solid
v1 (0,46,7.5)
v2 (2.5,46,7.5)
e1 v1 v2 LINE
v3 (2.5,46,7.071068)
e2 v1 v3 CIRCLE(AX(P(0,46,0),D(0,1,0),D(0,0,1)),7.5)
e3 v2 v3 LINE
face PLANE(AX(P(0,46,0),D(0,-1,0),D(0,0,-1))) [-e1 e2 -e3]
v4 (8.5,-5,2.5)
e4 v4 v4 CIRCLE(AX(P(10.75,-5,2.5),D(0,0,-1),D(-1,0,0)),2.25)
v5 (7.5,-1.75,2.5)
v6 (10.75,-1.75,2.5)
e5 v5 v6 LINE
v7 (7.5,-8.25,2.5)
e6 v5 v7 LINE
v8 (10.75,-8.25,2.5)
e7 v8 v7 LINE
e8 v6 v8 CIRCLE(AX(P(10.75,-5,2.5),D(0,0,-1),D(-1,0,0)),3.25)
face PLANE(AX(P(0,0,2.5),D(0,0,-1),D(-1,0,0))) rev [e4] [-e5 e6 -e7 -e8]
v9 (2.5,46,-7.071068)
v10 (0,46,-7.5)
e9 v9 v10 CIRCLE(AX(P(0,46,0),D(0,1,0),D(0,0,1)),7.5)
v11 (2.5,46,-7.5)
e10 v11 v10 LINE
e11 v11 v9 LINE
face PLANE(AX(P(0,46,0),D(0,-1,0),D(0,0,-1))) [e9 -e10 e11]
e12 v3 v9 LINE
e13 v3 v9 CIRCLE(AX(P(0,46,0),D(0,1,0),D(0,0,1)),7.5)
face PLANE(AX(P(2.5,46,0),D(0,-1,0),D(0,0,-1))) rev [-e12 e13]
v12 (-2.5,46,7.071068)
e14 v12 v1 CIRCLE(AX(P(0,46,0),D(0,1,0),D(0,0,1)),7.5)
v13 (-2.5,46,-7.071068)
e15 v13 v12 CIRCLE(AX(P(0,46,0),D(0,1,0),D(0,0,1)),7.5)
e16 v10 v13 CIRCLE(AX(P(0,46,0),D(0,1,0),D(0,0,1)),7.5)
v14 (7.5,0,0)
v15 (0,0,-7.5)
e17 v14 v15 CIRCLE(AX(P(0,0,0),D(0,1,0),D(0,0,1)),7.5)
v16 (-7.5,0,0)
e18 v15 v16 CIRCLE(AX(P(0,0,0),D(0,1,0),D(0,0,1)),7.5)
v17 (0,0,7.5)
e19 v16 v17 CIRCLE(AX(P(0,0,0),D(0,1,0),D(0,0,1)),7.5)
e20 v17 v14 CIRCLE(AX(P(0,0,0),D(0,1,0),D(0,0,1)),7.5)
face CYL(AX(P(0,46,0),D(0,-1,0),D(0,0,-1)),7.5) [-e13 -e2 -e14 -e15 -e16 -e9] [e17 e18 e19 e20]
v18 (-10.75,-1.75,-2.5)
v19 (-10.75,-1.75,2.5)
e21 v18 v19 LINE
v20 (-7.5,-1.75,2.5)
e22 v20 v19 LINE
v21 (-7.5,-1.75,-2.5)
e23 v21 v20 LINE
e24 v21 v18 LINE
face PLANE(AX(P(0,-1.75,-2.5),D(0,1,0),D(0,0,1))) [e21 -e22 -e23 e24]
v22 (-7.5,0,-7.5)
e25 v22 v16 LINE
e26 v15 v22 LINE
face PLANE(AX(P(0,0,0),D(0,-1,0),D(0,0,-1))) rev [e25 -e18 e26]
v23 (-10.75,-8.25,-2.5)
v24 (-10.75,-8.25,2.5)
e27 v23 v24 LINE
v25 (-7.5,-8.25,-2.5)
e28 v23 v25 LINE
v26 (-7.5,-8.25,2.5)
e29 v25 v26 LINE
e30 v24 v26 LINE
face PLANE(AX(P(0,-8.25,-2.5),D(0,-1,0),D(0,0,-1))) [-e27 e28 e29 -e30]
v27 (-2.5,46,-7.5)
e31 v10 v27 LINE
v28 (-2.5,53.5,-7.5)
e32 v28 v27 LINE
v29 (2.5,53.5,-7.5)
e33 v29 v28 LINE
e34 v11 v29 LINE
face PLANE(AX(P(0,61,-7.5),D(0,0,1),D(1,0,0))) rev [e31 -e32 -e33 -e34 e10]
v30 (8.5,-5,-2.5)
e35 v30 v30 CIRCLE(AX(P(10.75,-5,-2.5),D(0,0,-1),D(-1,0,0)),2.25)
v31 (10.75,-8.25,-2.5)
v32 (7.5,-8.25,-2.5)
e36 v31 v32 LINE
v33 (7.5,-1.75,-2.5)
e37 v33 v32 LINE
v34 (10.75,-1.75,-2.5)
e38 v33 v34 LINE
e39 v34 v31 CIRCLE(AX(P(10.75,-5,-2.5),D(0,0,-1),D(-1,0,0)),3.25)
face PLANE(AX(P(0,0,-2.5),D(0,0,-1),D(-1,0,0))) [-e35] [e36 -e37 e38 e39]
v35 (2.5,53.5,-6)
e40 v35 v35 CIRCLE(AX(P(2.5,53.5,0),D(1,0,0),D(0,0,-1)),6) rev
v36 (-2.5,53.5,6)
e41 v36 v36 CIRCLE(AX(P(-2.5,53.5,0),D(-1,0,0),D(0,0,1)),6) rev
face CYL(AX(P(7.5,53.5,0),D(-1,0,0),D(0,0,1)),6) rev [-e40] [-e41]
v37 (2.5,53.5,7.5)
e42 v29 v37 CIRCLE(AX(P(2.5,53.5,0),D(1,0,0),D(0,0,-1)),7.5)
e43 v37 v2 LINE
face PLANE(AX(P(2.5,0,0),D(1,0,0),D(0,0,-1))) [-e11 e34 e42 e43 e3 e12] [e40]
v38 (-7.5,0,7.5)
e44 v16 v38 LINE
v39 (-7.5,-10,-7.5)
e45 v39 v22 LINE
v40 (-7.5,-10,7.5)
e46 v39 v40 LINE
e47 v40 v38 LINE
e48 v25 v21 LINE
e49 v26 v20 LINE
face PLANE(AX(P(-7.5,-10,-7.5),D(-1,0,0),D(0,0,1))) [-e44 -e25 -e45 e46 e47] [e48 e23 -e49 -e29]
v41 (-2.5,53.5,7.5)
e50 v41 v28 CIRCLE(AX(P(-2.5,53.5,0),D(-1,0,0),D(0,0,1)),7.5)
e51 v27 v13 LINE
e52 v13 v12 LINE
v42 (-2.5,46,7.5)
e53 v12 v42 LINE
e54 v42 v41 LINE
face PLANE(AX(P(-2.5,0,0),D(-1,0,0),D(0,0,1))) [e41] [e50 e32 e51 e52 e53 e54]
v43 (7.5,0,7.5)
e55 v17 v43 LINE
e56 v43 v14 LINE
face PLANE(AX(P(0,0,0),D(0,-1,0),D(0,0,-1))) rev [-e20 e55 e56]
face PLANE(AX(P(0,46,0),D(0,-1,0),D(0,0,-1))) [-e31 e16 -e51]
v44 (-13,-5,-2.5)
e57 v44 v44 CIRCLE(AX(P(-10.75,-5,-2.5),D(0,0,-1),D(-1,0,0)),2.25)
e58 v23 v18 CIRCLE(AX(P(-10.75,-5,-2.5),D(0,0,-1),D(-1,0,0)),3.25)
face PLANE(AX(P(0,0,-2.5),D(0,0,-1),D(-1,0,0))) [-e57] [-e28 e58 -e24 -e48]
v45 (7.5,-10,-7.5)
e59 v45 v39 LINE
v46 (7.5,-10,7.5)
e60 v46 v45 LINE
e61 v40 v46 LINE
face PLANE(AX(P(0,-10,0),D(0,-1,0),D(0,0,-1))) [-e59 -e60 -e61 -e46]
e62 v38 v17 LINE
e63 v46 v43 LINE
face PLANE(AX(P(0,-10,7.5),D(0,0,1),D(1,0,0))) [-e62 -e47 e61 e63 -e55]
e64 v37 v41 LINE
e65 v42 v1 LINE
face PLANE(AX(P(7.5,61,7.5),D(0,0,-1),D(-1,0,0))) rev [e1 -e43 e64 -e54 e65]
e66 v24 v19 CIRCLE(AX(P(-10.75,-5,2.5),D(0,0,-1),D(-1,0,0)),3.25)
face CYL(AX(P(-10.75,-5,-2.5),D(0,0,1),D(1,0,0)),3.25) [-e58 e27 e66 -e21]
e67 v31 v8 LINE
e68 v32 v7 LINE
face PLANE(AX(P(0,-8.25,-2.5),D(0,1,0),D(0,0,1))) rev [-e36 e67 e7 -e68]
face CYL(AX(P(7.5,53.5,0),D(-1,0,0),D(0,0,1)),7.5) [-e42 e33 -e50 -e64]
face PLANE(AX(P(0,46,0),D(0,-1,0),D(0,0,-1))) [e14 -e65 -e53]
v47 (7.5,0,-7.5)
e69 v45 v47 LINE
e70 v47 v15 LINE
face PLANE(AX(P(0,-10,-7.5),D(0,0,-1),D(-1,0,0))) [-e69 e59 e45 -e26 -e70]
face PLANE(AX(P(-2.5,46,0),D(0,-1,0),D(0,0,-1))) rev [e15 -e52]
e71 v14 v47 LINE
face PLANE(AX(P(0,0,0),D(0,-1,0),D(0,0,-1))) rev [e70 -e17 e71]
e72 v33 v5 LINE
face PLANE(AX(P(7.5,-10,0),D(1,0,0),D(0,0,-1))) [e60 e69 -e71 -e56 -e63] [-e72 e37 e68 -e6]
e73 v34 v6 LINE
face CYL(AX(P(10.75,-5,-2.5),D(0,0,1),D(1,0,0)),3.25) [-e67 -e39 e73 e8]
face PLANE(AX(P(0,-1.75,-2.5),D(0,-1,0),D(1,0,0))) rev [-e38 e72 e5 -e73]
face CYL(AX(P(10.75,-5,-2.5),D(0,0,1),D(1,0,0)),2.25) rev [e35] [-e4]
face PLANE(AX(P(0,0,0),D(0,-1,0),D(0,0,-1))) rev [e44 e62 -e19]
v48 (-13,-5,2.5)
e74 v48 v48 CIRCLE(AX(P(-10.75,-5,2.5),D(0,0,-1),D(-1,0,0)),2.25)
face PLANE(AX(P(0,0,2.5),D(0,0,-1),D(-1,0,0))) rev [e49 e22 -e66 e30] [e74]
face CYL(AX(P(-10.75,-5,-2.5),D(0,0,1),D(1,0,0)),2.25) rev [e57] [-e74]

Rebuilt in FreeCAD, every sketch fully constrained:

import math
import FreeCAD as App
import Part
import Sketcher

V = App.Vector
Q = App.Units.Quantity


def add_polygon(sketch, points):
    """Adds a closed chain of lines whose ends are joined by coincident constraints."""
    first, n = sketch.GeometryCount, len(points)
    for a, b in zip(points, points[1:] + points[:1]):
        sketch.addGeometry(Part.LineSegment(App.Vector(*a, 0), App.Vector(*b, 0)), False)
    for i in range(n):
        sketch.addConstraint(Sketcher.Constraint("Coincident", first + i, 2, first + (i + 1) % n, 1))

doc = App.newDocument("Part")
body = doc.addObject("PartDesign::Body", "Body")

sketch1 = doc.addObject("Sketcher::SketchObject", "Sketch")
body.addObject(sketch1)
sketch1.AttachmentSupport = (doc.XZ_Plane, [""])
sketch1.MapMode = "FlatFace"
sketch1.addGeometry(Part.Circle(V(0, 0, 0), V(0, 0, 1), 7.5), False)
sketch1.addConstraint([
    Sketcher.Constraint("Coincident", 0, 3, -1, 1),
    Sketcher.Constraint("Diameter", 0, Q("15 mm")),
])
pad1 = doc.addObject("PartDesign::Pad", "Pad")
body.addObject(pad1)
pad1.Profile = sketch1
pad1.Length = 46
pad1.Reversed = True

sketch2 = doc.addObject("Sketcher::SketchObject", "Sketch001")
body.addObject(sketch2)
sketch2.AttachmentSupport = (doc.XZ_Plane, [""])
sketch2.MapMode = "FlatFace"
add_polygon(sketch2, [(-7.5, 7.5), (-7.5, -7.5), (7.5, -7.5), (7.5, 7.5)])
sketch2.addConstraint([
    Sketcher.Constraint("Vertical", 0),
    Sketcher.Constraint("Horizontal", 1),
    Sketcher.Constraint("Vertical", 2),
    Sketcher.Constraint("Horizontal", 3),
    Sketcher.Constraint("Symmetric", 0, 2, 2, 2, -1, 1),
    Sketcher.Constraint("Equal", 3, 0),
    Sketcher.Constraint("DistanceX", 1, 1, 1, 2, Q("15 mm")),
])
pad2 = doc.addObject("PartDesign::Pad", "Pad001")
body.addObject(pad2)
pad2.Profile = sketch2
pad2.Length = 10

sketch3 = doc.addObject("Sketcher::SketchObject", "Sketch002")
body.addObject(sketch3)
sketch3.AttachmentSupport = (doc.XZ_Plane, [""])
sketch3.MapMode = "FlatFace"
sketch3.AttachmentOffset = App.Placement(V(0, 0, -46), App.Rotation())
add_polygon(sketch3, [(7.5, -7.5), (-7.5, -7.5), (-7.5, 7.5), (7.5, 7.5)])
sketch3.addConstraint([
    Sketcher.Constraint("Horizontal", 0),
    Sketcher.Constraint("Vertical", 1),
    Sketcher.Constraint("Horizontal", 2),
    Sketcher.Constraint("Vertical", 3),
    Sketcher.Constraint("Symmetric", 0, 2, 2, 2, -1, 1),
    Sketcher.Constraint("Equal", 2, 1),
    Sketcher.Constraint("DistanceX", 0, 2, 0, 1, Q("15 mm")),
])
pad3 = doc.addObject("PartDesign::Pad", "Pad002")
body.addObject(pad3)
pad3.Profile = sketch3
pad3.Length = 15
pad3.Reversed = True

sketch4 = doc.addObject("Sketcher::SketchObject", "Sketch003")
body.addObject(sketch4)
sketch4.AttachmentSupport = (doc.YZ_Plane, [""])
sketch4.MapMode = "FlatFace"
sketch4.AttachmentOffset = App.Placement(V(0, 0, -7.5), App.Rotation())
sketch4.addGeometry([
    Part.ArcOfCircle(Part.Circle(V(53.5, 0, 0), V(0, 0, 1), 7.5), math.radians(-90), math.radians(0)),
    Part.LineSegment(V(61, 0, 0), V(61, -7.5, 0)),
    Part.LineSegment(V(61, -7.5, 0), V(53.5, -7.5, 0)),
    Part.LineSegment(V(61, 7.5, 0), V(61, 0, 0)),
    Part.ArcOfCircle(Part.Circle(V(53.5, 0, 0), V(0, 0, 1), 7.5), math.radians(0), math.radians(90)),
    Part.LineSegment(V(53.5, 7.5, 0), V(61, 7.5, 0)),
], False)
sketch4.addConstraint([
    Sketcher.Constraint("Tangent", 0, 2, 1, 1),
    Sketcher.Constraint("Coincident", 1, 2, 2, 1),
    Sketcher.Constraint("Tangent", 2, 2, 0, 1),
    Sketcher.Constraint("Tangent", 3, 2, 4, 1),
    Sketcher.Constraint("Tangent", 4, 2, 5, 1),
    Sketcher.Constraint("Coincident", 5, 2, 3, 1),
    Sketcher.Constraint("Vertical", 1),
    Sketcher.Constraint("Horizontal", 2),
    Sketcher.Constraint("Vertical", 3),
    Sketcher.Constraint("Horizontal", 5),
    Sketcher.Constraint("Coincident", 4, 3, 0, 3),
    Sketcher.Constraint("Equal", 0, 4),
    Sketcher.Constraint("PointOnObject", 0, 3, -1),
    Sketcher.Constraint("Radius", 0, Q("7.5 mm")),
    Sketcher.Constraint("DistanceX", -1, 1, 0, 2, Q("61 mm")),
])
pocket1 = doc.addObject("PartDesign::Pocket", "Pocket")
body.addObject(pocket1)
pocket1.Profile = sketch4
pocket1.Type = "ThroughAll"
pocket1.Reversed = True

sketch5 = doc.addObject("Sketcher::SketchObject", "Sketch004")
body.addObject(sketch5)
sketch5.AttachmentSupport = (doc.YZ_Plane, [""])
sketch5.MapMode = "FlatFace"
sketch5.AttachmentOffset = App.Placement(V(0, 0, -7.5), App.Rotation())
sketch5.addGeometry(Part.Circle(V(53.5, 0, 0), V(0, 0, 1), 6), False)
sketch5.addConstraint([
    Sketcher.Constraint("PointOnObject", 0, 3, -1),
    Sketcher.Constraint("Diameter", 0, Q("12 mm")),
    Sketcher.Constraint("DistanceX", -1, 1, 0, 3, Q("53.5 mm")),
])
pocket2 = doc.addObject("PartDesign::Pocket", "Pocket001")
body.addObject(pocket2)
pocket2.Profile = sketch5
pocket2.Type = "ThroughAll"
pocket2.Reversed = True

sketch6 = doc.addObject("Sketcher::SketchObject", "Sketch005")
body.addObject(sketch6)
sketch6.AttachmentSupport = (doc.YZ_Plane, [""])
sketch6.MapMode = "FlatFace"
sketch6.AttachmentOffset = App.Placement(V(0, 0, -7.5), App.Rotation())
sketch6.addGeometry([
    Part.LineSegment(V(53.5, -7.5, 0), V(46, -7.5, 0)),
    Part.LineSegment(V(46, -7.5, 0), V(46, 7.5, 0)),
    Part.LineSegment(V(46, 7.5, 0), V(53.5, 7.5, 0)),
    Part.ArcOfCircle(Part.Circle(V(53.5, 0, 0), V(0, 0, 1), 7.5), math.radians(-90), math.radians(90)),
], False)
sketch6.addConstraint([
    Sketcher.Constraint("Coincident", 0, 2, 1, 1),
    Sketcher.Constraint("Coincident", 1, 2, 2, 1),
    Sketcher.Constraint("Tangent", 2, 2, 3, 2),
    Sketcher.Constraint("Tangent", 3, 1, 0, 1),
    Sketcher.Constraint("Horizontal", 0),
    Sketcher.Constraint("Vertical", 1),
    Sketcher.Constraint("Horizontal", 2),
    Sketcher.Constraint("PointOnObject", 3, 3, -1),
    Sketcher.Constraint("Radius", 3, Q("7.5 mm")),
    Sketcher.Constraint("DistanceX", 0, 2, 0, 1, Q("7.5 mm")),
    Sketcher.Constraint("DistanceX", -1, 1, 0, 2, Q("46 mm")),
])
pocket3 = doc.addObject("PartDesign::Pocket", "Pocket002")
body.addObject(pocket3)
pocket3.Profile = sketch6
pocket3.Length = 5
pocket3.Reversed = True

sketch7 = doc.addObject("Sketcher::SketchObject", "Sketch006")
body.addObject(sketch7)
sketch7.AttachmentSupport = (doc.YZ_Plane, [""])
sketch7.MapMode = "FlatFace"
sketch7.AttachmentOffset = App.Placement(V(0, 0, 2.5), App.Rotation())
sketch7.addGeometry([
    Part.LineSegment(V(53.5, 7.5, 0), V(46, 7.5, 0)),
    Part.LineSegment(V(46, 7.5, 0), V(46, -7.5, 0)),
    Part.LineSegment(V(46, -7.5, 0), V(53.5, -7.5, 0)),
    Part.ArcOfCircle(Part.Circle(V(53.5, 0, 0), V(0, 0, 1), 7.5), math.radians(-90), math.radians(90)),
    Part.Circle(V(53.5, 0, 0), V(0, 0, 1), 6),
], False)
sketch7.addConstraint([
    Sketcher.Constraint("Coincident", 0, 2, 1, 1),
    Sketcher.Constraint("Coincident", 1, 2, 2, 1),
    Sketcher.Constraint("Tangent", 2, 2, 3, 1),
    Sketcher.Constraint("Tangent", 3, 2, 0, 1),
    Sketcher.Constraint("Horizontal", 0),
    Sketcher.Constraint("Vertical", 1),
    Sketcher.Constraint("Horizontal", 2),
    Sketcher.Constraint("Coincident", 4, 3, 3, 3),
    Sketcher.Constraint("PointOnObject", 3, 3, -1),
    Sketcher.Constraint("Diameter", 4, Q("12 mm")),
    Sketcher.Constraint("Radius", 3, Q("7.5 mm")),
    Sketcher.Constraint("DistanceX", 0, 2, 0, 1, Q("7.5 mm")),
    Sketcher.Constraint("DistanceX", -1, 1, 0, 2, Q("46 mm")),
])
pocket4 = doc.addObject("PartDesign::Pocket", "Pocket003")
body.addObject(pocket4)
pocket4.Profile = sketch7
pocket4.Length = 5
pocket4.Reversed = True

sketch8 = doc.addObject("Sketcher::SketchObject", "Sketch007")
body.addObject(sketch8)
sketch8.AttachmentSupport = (doc.XY_Plane, [""])
sketch8.MapMode = "FlatFace"
sketch8.addGeometry([
    Part.LineSegment(V(-7.5, -1.75, 0), V(-7.5, -8.25, 0)),
    Part.LineSegment(V(-7.5, -8.25, 0), V(-10.75, -8.25, 0)),
    Part.ArcOfCircle(Part.Circle(V(-10.75, -5, 0), V(0, 0, 1), 3.25), math.radians(90), math.radians(270)),
    Part.LineSegment(V(-10.75, -1.75, 0), V(-7.5, -1.75, 0)),
    Part.Circle(V(-10.75, -5, 0), V(0, 0, 1), 2.25),
], False)
sketch8.addConstraint([
    Sketcher.Constraint("Coincident", 0, 2, 1, 1),
    Sketcher.Constraint("Tangent", 1, 2, 2, 2),
    Sketcher.Constraint("Tangent", 2, 1, 3, 1),
    Sketcher.Constraint("Coincident", 3, 2, 0, 1),
    Sketcher.Constraint("Vertical", 0),
    Sketcher.Constraint("Horizontal", 1),
    Sketcher.Constraint("Horizontal", 3),
    Sketcher.Constraint("Coincident", 4, 3, 2, 3),
    Sketcher.Constraint("Diameter", 4, Q("4.5 mm")),
    Sketcher.Constraint("Radius", 2, Q("3.25 mm")),
    Sketcher.Constraint("DistanceY", 2, 3, -1, 1, Q("5 mm")),
    Sketcher.Constraint("DistanceX", 1, 2, 1, 1, Q("3.25 mm")),
    Sketcher.Constraint("DistanceX", 0, 2, -1, 1, Q("7.5 mm")),
])
pad4 = doc.addObject("PartDesign::Pad", "Pad003")
body.addObject(pad4)
pad4.Profile = sketch8
pad4.Length = 5
pad4.Midplane = True

sketch9 = doc.addObject("Sketcher::SketchObject", "Sketch008")
body.addObject(sketch9)
sketch9.AttachmentSupport = (doc.XY_Plane, [""])
sketch9.MapMode = "FlatFace"
sketch9.addGeometry([
    Part.LineSegment(V(7.5, -8.25, 0), V(7.5, -1.75, 0)),
    Part.LineSegment(V(7.5, -1.75, 0), V(10.75, -1.75, 0)),
    Part.ArcOfCircle(Part.Circle(V(10.75, -5, 0), V(0, 0, 1), 3.25), math.radians(-90), math.radians(90)),
    Part.LineSegment(V(10.75, -8.25, 0), V(7.5, -8.25, 0)),
    Part.ArcOfCircle(Part.Circle(V(10.75, -5, 0), V(0, 0, 1), 2.25), math.radians(90), math.radians(180)),
    Part.ArcOfCircle(Part.Circle(V(10.75, -5, 0), V(0, 0, 1), 2.25), math.radians(180), math.radians(270)),
    Part.ArcOfCircle(Part.Circle(V(10.75, -5, 0), V(0, 0, 1), 2.25), math.radians(-90), math.radians(90)),
], False)
sketch9.addConstraint([
    Sketcher.Constraint("Coincident", 0, 2, 1, 1),
    Sketcher.Constraint("Tangent", 1, 2, 2, 2),
    Sketcher.Constraint("Tangent", 2, 1, 3, 1),
    Sketcher.Constraint("Coincident", 3, 2, 0, 1),
    Sketcher.Constraint("Tangent", 4, 2, 5, 1),
    Sketcher.Constraint("Tangent", 5, 2, 6, 1),
    Sketcher.Constraint("Tangent", 6, 2, 4, 1),
    Sketcher.Constraint("Vertical", 0),
    Sketcher.Constraint("Horizontal", 1),
    Sketcher.Constraint("Horizontal", 3),
    Sketcher.Constraint("Coincident", 4, 3, 2, 3),
    Sketcher.Constraint("Horizontal", 6, 3, 4, 2),
    Sketcher.Constraint("Vertical", 2, 1, 5, 2),
    Sketcher.Constraint("Vertical", 5, 2, 6, 2),
    Sketcher.Constraint("Radius", 2, Q("3.25 mm")),
    Sketcher.Constraint("Radius", 4, Q("2.25 mm")),
    Sketcher.Constraint("DistanceY", 2, 3, -1, 1, Q("5 mm")),
    Sketcher.Constraint("DistanceX", 0, 2, 4, 2, Q("1 mm")),
    Sketcher.Constraint("DistanceX", -1, 1, 0, 2, Q("7.5 mm")),
])
pad5 = doc.addObject("PartDesign::Pad", "Pad004")
body.addObject(pad5)
pad5.Profile = sketch9
pad5.Length = 5
pad5.Midplane = True

doc.recompute()
